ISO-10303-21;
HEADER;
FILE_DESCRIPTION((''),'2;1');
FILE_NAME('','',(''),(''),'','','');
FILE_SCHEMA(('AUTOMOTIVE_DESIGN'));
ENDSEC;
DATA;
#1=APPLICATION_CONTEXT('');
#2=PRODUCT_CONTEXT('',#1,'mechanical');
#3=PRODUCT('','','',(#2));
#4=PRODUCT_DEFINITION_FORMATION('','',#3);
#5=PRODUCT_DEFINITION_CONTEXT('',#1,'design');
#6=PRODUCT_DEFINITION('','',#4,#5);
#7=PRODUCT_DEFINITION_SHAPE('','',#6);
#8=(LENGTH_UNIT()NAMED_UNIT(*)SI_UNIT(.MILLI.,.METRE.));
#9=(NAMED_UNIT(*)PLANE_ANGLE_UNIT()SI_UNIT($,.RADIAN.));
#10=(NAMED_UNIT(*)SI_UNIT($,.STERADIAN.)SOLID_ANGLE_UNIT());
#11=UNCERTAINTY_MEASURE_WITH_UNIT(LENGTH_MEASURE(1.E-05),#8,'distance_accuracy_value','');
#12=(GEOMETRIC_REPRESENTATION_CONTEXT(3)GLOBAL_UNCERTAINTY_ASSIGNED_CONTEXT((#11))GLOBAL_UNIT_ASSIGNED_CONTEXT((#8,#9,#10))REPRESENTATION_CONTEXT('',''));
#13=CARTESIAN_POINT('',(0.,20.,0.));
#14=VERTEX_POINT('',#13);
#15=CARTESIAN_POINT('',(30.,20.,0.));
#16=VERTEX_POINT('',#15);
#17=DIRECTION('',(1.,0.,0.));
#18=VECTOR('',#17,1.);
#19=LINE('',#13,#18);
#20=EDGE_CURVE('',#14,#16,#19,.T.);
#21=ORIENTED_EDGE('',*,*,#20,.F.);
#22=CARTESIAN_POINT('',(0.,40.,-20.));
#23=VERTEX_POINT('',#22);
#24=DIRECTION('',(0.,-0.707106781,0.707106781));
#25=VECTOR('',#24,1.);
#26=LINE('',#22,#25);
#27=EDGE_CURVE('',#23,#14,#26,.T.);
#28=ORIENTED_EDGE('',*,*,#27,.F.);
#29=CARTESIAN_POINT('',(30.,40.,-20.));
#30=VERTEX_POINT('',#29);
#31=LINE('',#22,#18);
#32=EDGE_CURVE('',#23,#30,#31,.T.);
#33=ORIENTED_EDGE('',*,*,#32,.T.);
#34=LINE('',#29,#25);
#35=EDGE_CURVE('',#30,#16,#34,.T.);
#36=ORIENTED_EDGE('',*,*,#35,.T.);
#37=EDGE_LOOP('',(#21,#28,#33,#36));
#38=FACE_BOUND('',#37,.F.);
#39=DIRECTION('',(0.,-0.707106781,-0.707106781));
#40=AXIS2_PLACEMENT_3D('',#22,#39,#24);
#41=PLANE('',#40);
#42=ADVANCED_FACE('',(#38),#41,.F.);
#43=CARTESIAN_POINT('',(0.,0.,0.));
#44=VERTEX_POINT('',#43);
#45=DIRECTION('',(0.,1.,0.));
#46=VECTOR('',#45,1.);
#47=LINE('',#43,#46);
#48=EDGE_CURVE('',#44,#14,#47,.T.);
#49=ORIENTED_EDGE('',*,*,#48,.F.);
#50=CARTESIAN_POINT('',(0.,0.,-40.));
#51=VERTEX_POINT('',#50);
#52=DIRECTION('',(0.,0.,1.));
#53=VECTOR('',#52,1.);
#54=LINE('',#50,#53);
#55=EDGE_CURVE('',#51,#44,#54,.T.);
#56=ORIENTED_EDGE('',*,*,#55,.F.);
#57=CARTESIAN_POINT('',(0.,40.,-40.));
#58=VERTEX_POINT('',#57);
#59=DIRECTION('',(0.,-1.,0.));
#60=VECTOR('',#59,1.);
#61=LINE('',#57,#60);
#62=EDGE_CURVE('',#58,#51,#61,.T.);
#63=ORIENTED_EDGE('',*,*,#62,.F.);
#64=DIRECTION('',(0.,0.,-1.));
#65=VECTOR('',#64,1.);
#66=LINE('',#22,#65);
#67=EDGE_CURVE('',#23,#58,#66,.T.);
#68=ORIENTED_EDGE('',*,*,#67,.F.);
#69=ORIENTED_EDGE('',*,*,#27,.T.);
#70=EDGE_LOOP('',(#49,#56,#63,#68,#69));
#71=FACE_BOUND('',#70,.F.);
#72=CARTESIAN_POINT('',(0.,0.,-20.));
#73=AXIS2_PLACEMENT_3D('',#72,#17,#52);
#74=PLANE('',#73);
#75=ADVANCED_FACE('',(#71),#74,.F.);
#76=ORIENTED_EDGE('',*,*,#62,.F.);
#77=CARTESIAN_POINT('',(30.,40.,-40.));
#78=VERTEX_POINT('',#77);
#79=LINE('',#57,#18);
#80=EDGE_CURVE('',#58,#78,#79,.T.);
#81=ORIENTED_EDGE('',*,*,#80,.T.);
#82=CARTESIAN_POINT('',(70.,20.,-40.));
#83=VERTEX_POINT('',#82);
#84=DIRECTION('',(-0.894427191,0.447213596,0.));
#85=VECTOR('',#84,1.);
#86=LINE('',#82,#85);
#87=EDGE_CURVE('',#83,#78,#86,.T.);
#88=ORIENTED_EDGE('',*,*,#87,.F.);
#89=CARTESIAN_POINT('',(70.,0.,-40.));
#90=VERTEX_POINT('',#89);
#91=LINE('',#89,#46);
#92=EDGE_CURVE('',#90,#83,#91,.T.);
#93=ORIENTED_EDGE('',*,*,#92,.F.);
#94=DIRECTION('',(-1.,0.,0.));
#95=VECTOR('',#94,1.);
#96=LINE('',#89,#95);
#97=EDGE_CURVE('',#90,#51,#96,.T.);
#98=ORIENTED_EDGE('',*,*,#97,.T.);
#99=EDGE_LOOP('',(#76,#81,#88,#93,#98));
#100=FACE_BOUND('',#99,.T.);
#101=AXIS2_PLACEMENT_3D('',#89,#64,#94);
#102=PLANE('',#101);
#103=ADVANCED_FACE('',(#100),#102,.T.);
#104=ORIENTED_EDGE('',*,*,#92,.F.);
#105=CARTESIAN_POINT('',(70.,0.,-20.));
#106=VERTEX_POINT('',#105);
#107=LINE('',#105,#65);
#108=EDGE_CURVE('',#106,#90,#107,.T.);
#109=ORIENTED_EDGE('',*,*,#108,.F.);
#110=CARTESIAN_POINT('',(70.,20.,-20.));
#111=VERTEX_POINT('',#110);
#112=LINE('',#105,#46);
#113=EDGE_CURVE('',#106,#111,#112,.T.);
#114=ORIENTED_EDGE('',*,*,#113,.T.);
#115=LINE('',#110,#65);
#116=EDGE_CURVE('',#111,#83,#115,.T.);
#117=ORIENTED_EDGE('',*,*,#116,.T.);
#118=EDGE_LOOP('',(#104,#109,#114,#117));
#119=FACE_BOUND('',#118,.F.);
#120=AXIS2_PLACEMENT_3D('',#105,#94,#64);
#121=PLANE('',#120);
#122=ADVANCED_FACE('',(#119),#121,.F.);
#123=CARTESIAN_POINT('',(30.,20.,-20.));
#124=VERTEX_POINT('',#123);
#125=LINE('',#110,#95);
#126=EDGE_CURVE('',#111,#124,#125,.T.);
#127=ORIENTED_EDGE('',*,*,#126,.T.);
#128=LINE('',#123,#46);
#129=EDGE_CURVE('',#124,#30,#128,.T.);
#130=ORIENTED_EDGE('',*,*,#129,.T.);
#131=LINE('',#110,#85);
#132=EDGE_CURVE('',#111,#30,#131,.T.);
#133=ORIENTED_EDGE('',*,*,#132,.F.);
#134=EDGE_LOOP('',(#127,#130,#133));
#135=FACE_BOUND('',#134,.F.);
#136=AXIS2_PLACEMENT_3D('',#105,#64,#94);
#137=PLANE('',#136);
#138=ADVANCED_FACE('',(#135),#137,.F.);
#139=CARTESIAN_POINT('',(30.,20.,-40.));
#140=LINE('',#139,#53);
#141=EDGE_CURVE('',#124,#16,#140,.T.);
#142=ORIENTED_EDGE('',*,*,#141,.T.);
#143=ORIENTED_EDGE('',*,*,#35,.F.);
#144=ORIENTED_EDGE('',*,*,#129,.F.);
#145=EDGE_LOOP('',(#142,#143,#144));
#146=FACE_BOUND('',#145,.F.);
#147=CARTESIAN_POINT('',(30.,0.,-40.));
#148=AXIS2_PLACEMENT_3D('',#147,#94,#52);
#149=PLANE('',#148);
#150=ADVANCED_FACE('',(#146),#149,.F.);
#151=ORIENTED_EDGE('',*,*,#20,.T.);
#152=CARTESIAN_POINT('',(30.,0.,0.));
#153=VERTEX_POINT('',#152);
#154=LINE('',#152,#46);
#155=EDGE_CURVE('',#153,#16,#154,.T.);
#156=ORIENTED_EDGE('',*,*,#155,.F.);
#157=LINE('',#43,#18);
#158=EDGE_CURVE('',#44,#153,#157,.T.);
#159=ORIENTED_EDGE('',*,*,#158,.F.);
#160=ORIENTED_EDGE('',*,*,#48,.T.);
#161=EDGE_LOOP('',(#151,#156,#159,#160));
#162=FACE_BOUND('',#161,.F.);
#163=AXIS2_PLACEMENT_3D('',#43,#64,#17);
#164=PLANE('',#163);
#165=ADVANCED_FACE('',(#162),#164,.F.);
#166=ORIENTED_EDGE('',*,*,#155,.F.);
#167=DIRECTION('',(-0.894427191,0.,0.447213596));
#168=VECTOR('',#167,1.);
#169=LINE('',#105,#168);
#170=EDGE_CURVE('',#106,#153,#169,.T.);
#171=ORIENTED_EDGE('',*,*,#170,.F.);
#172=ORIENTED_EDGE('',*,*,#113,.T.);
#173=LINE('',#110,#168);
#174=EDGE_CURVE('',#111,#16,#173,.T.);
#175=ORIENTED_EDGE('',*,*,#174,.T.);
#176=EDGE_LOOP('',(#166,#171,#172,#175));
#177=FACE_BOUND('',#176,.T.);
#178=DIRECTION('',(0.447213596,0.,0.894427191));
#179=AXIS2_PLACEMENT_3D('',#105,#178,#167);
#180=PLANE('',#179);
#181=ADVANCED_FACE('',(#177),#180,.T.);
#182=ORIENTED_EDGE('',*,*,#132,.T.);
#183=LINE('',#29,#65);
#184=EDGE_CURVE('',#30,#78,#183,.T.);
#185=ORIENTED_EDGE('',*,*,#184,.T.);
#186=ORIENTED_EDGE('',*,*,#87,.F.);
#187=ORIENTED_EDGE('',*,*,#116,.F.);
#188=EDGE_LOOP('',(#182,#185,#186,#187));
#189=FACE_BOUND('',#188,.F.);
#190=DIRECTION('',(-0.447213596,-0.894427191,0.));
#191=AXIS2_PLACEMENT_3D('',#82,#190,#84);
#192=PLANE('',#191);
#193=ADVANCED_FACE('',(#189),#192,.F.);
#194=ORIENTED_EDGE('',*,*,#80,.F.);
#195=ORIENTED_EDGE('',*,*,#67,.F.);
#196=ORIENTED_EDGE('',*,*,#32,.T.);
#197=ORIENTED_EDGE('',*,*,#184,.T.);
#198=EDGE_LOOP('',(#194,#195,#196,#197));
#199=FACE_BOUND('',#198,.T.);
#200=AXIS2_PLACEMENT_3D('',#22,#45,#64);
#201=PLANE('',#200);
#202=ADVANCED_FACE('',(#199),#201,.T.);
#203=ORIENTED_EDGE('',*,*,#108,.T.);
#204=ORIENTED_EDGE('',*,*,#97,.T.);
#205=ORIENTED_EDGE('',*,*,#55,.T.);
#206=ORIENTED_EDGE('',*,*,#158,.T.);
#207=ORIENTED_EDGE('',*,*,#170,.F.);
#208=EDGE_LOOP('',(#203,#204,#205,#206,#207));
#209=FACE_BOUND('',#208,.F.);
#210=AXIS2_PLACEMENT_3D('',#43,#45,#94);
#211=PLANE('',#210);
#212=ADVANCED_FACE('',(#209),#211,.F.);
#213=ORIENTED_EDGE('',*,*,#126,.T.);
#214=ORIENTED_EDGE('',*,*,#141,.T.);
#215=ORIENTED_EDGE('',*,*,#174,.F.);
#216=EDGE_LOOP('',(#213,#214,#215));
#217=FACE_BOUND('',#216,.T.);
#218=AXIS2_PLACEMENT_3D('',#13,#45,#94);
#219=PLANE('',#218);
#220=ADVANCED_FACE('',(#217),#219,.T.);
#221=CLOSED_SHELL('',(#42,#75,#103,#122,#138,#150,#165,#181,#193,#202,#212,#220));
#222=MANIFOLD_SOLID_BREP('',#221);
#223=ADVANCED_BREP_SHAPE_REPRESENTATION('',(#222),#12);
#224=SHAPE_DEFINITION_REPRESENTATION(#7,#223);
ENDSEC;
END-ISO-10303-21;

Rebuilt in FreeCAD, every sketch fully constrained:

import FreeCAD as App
import Part
import Sketcher
from FreeCAD import Vector
Q = App.Units.Quantity

doc = App.newDocument("Part")
body = doc.addObject("PartDesign::Body", "Body")

# Sketch on XZ plane
sketch1 = body.newObject("Sketcher::SketchObject", "Sketch")
sketch1.AttachmentSupport = (doc.getObject("XZ_Plane"), [""])
sketch1.MapMode = "FlatFace"
sketch1.addGeometry([
    Part.LineSegment(Vector(0, 0, 0), Vector(30, 0, 0)),  # 0
    Part.LineSegment(Vector(30, 0, 0), Vector(70, -20, 0)),  # 1
    Part.LineSegment(Vector(70, -20, 0), Vector(70, -40, 0)),  # 2
    Part.LineSegment(Vector(70, -40, 0), Vector(0, -40, 0)),  # 3
    Part.LineSegment(Vector(0, -40, 0), Vector(0, 0, 0)),  # 4
], False)
sketch1.addConstraint([
    Sketcher.Constraint("Coincident", 0, 2, 1, 1),
    Sketcher.Constraint("Coincident", 1, 2, 2, 1),
    Sketcher.Constraint("Coincident", 2, 2, 3, 1),
    Sketcher.Constraint("Coincident", 3, 2, 4, 1),
    Sketcher.Constraint("Coincident", 4, 2, 0, 1),
    Sketcher.Constraint("Horizontal", 0),
    Sketcher.Constraint("Vertical", 2),
    Sketcher.Constraint("Horizontal", 3),
    Sketcher.Constraint("Vertical", 4),
    Sketcher.Constraint("Coincident", 4, 2, -1, 1),
    Sketcher.Constraint("DistanceX", 0, 1, 0, 2, Q("30 mm")),
    Sketcher.Constraint("DistanceX", 3, 2, 3, 1, Q("70 mm")),
    Sketcher.Constraint("DistanceY", 2, 2, 2, 1, Q("20 mm")),
    Sketcher.Constraint("DistanceY", 1, 2, -1, 1, Q("20 mm")),
])
pad1 = body.newObject("PartDesign::Pad", "Pad")
pad1.Profile = sketch1
pad1.Length = 20
pad1.Reversed = True

# Sketch on YZ plane
sketch2 = body.newObject("Sketcher::SketchObject", "Sketch001")
sketch2.AttachmentSupport = (doc.getObject("YZ_Plane"), [""])
sketch2.MapMode = "FlatFace"
sketch2.addGeometry([
    Part.LineSegment(Vector(40, -40, 0), Vector(20, -40, 0)),
    Part.LineSegment(Vector(20, -40, 0), Vector(20, 0, 0)),
    Part.LineSegment(Vector(20, 0, 0), Vector(40, -20, 0)),
    Part.LineSegment(Vector(40, -20, 0), Vector(40, -40, 0)),
], False)
sketch2.addConstraint([
    Sketcher.Constraint("Coincident", 0, 2, 1, 1),
    Sketcher.Constraint("Coincident", 1, 2, 2, 1),
    Sketcher.Constraint("Coincident", 2, 2, 3, 1),
    Sketcher.Constraint("Coincident", 3, 2, 0, 1),
    Sketcher.Constraint("Horizontal", 0),
    Sketcher.Constraint("Vertical", 1),
    Sketcher.Constraint("Vertical", 3),
    Sketcher.Constraint("PointOnObject", 1, 2, -1),
    Sketcher.Constraint("Equal", 0, 3),
    Sketcher.Constraint("DistanceX", 0, 2, 0, 1, Q("20 mm")),
    Sketcher.Constraint("DistanceX", -1, 1, 0, 2, Q("20 mm")),
    Sketcher.Constraint("DistanceY", 2, 2, -1, 1, Q("20 mm")),
])
pad2 = body.newObject("PartDesign::Pad", "Pad001")
pad2.Profile = sketch2
pad2.Length = 30

# Sketch on XY plane
sketch3 = body.newObject("Sketcher::SketchObject", "Sketch002")
sketch3.AttachmentSupport = (doc.getObject("XY_Plane"), [""])
sketch3.MapMode = "FlatFace"
sketch3.AttachmentOffset = App.Placement(Vector(0, 0, -40), App.Rotation())
sketch3.addGeometry([
    Part.LineSegment(Vector(70, 20, 0), Vector(30, 20, 0)),
    Part.LineSegment(Vector(30, 20, 0), Vector(30, 40, 0)),
    Part.LineSegment(Vector(30, 40, 0), Vector(70, 20, 0)),
], False)
sketch3.addConstraint([
    Sketcher.Constraint("Coincident", 0, 2, 1, 1),
    Sketcher.Constraint("Coincident", 1, 2, 2, 1),
    Sketcher.Constraint("Coincident", 2, 2, 0, 1),
    Sketcher.Constraint("Horizontal", 0),
    Sketcher.Constraint("Vertical", 1),
    Sketcher.Constraint("DistanceX", 0, 2, 0, 1, Q("40 mm")),
    Sketcher.Constraint("DistanceY", 1, 1, 1, 2, Q("20 mm")),
    Sketcher.Constraint("DistanceX", -1, 1, 0, 2, Q("30 mm")),
    Sketcher.Constraint("DistanceY", -1, 1, 0, 2, Q("20 mm")),
])
pad3 = body.newObject("PartDesign::Pad", "Pad002")
pad3.Profile = sketch3
pad3.Length = 20

doc.recompute()
